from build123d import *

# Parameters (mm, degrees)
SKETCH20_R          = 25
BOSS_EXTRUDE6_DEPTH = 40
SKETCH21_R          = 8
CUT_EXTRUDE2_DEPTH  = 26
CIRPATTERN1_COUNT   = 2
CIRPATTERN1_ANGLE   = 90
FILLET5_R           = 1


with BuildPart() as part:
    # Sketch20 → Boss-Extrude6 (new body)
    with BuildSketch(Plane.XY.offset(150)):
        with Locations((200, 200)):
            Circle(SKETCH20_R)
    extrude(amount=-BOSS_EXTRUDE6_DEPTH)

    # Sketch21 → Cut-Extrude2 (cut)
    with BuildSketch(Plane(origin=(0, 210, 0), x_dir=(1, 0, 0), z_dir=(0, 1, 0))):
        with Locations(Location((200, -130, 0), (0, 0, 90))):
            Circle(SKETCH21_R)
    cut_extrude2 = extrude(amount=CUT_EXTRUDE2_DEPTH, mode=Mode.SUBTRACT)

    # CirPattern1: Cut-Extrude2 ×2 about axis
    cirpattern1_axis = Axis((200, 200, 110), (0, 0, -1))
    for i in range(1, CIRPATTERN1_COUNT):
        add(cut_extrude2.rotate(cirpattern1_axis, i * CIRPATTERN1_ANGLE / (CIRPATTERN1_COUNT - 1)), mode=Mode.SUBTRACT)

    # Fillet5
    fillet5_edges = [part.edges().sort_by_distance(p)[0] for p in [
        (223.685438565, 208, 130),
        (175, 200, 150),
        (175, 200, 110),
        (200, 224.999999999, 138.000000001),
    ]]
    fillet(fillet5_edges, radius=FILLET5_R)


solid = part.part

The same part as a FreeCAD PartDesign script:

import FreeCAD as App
import Part
import Sketcher
Q = App.Units.Quantity


def edges_at(feature, points):
    """Names of the edges that pass closest to the given points."""
    edges = feature.Shape.Edges
    near = lambda p: min(range(len(edges)), key=lambda i: edges[i].distToShape(Part.Vertex(*p))[0])
    return sorted({f"Edge{near(p) + 1}" for p in points})

doc = App.newDocument("Part")
params = doc.addObject("Spreadsheet::Sheet", "Params")
for row, (alias, value) in enumerate([
    ("sketch1_diameter", "50 mm"),
    ("pad1_length", "40 mm"),
    ("sketch2_diameter", "16 mm"),
    ("pocket1_length", "26 mm"),
    ("fillet_radius", "1 mm"),
], start=1):
    params.set(f"A{row}", alias)
    params.set(f"B{row}", "=" + value)
    params.setAlias(f"B{row}", alias)

body = doc.addObject("PartDesign::Body", "Body")

sketch1 = doc.addObject("Sketcher::SketchObject", "Sketch")
body.addObject(sketch1)
sketch1.AttachmentSupport = (doc.XY_Plane, [""])
sketch1.MapMode = "FlatFace"
sketch1.AttachmentOffset = App.Placement(App.Vector(0, 0, 150), App.Rotation())
sketch1.addGeometry(Part.Circle(App.Vector(200, 200, 0), App.Vector(0, 0, 1), 25), False)
sketch1.addConstraint([
    Sketcher.Constraint("Diameter", 0, Q("50 mm")),
    Sketcher.Constraint("DistanceX", -1, 1, 0, 3, Q("200 mm")),
    Sketcher.Constraint("DistanceY", -1, 1, 0, 3, Q("200 mm")),
])
sketch1.setExpression("Constraints[0]", "Params.sketch1_diameter")
pad1 = doc.addObject("PartDesign::Pad", "Pad")
body.addObject(pad1)
pad1.Profile = sketch1
pad1.setExpression("Length", "Params.pad1_length")
pad1.Reversed = True

sketch2 = doc.addObject("Sketcher::SketchObject", "Sketch001")
body.addObject(sketch2)
sketch2.AttachmentSupport = (doc.XZ_Plane, [""])
sketch2.MapMode = "FlatFace"
sketch2.AttachmentOffset = App.Placement(App.Vector(0, 0, -210), App.Rotation())
sketch2.addGeometry(Part.Circle(App.Vector(200, 130, 0), App.Vector(0, 0, 1), 8), False)
sketch2.addConstraint([
    Sketcher.Constraint("Diameter", 0, Q("16 mm")),
    Sketcher.Constraint("DistanceX", -1, 1, 0, 3, Q("200 mm")),
    Sketcher.Constraint("DistanceY", -1, 1, 0, 3, Q("130 mm")),
])
sketch2.setExpression("Constraints[0]", "Params.sketch2_diameter")
pocket1 = doc.addObject("PartDesign::Pocket", "Pocket")
body.addObject(pocket1)
pocket1.Profile = sketch2
pocket1.setExpression("Length", "Params.pocket1_length")
doc.recompute()

datumline = doc.addObject("PartDesign::Line", "DatumLine")
body.addObject(datumline)
datumline.Placement = App.Placement(App.Vector(200, 200, 0), App.Rotation(App.Vector(0, 0, 1), App.Vector(0, 0, -1)))
polarpattern = doc.addObject("PartDesign::PolarPattern", "PolarPattern")
body.addObject(polarpattern)
polarpattern.Originals = [pocket1]
polarpattern.Axis = (datumline, [""])
polarpattern.Angle = 90
polarpattern.Occurrences = 2
body.Tip = polarpattern
doc.recompute()

fillet = doc.addObject("PartDesign::Fillet", "Fillet")
body.addObject(fillet)
fillet.Base = (polarpattern, edges_at(polarpattern, [
    (223.685, 208, 130),
    (175, 200, 150),
    (175, 200, 110),
    (200, 225, 138),
]))
fillet.setExpression("Radius", "Params.fillet_radius")

doc.recompute()
